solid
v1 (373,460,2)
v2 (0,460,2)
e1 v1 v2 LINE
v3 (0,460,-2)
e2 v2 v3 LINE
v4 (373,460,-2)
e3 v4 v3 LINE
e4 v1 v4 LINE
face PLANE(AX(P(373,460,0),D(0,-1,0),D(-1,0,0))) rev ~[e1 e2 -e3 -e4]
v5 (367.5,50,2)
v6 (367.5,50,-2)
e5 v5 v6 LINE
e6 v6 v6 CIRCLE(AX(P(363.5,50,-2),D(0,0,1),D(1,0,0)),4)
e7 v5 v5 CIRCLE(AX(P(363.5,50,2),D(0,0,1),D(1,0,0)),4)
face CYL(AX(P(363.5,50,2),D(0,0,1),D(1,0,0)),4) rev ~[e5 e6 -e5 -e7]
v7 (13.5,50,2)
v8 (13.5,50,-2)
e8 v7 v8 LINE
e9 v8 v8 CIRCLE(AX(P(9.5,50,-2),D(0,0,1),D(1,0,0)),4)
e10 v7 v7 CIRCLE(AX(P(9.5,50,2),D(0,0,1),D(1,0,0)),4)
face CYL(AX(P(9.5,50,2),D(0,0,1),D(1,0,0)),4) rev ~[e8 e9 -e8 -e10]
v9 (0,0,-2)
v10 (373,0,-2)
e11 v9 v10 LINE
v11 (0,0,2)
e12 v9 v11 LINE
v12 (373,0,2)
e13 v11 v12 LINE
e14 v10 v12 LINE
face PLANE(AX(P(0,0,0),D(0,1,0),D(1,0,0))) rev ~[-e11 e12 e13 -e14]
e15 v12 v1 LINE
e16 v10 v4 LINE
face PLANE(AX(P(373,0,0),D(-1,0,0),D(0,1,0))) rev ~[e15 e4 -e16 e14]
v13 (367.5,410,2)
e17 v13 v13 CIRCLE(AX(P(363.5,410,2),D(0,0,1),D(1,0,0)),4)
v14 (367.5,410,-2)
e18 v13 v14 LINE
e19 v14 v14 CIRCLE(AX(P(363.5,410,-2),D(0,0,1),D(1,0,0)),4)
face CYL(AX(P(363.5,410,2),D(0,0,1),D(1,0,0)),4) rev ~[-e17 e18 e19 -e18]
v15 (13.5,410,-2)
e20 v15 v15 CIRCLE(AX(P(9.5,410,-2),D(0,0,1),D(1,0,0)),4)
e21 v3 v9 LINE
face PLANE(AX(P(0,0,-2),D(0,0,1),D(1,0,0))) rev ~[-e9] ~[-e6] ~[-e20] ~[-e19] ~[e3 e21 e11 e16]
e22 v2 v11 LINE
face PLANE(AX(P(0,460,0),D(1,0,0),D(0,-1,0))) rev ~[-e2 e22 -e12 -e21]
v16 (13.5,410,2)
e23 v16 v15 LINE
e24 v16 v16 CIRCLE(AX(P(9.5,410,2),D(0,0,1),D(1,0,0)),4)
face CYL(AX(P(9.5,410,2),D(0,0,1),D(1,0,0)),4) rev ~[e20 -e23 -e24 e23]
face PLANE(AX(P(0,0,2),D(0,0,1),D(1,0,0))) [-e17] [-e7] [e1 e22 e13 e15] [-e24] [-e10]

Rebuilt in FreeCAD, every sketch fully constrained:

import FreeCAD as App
import Part
import Sketcher

V = App.Vector

doc = App.newDocument("Part")
body = doc.addObject("PartDesign::Body", "Body")

# Sketch on XY plane
sketch1 = body.newObject("Sketcher::SketchObject", "Sketch")
sketch1.AttachmentSupport = (doc.getObject("XY_Plane"), [""])
sketch1.MapMode = "FlatFace"
sketch1.addGeometry([
    Part.LineSegment(V(0, 460, 0), V(0, 0, 0)),
    Part.LineSegment(V(0, 0, 0), V(373, 0, 0)),
    Part.LineSegment(V(373, 0, 0), V(373, 460, 0)),
    Part.LineSegment(V(373, 460, 0), V(0, 460, 0)),
], False)
sketch1.addConstraint([
    Sketcher.Constraint("Coincident", 0, 2, 1, 1),
    Sketcher.Constraint("Coincident", 1, 2, 2, 1),
    Sketcher.Constraint("Coincident", 2, 2, 3, 1),
    Sketcher.Constraint("Coincident", 3, 2, 0, 1),
    Sketcher.Constraint("Vertical", 0),
    Sketcher.Constraint("Horizontal", 1),
    Sketcher.Constraint("Vertical", 2),
    Sketcher.Constraint("Horizontal", 3),
    Sketcher.Constraint("Coincident", 0, 2, -1, 1),
    Sketcher.Constraint("DistanceX", 1, 1, 1, 2, 373.0),
    Sketcher.Constraint("DistanceY", 0, 2, 0, 1, 460.0),
])
pad1 = body.newObject("PartDesign::Pad", "Pad")
pad1.Profile = sketch1
pad1.Length = 4
pad1.Midplane = True

# Sketch on XY plane
sketch2 = body.newObject("Sketcher::SketchObject", "Sketch001")
sketch2.AttachmentSupport = (doc.getObject("XY_Plane"), [""])
sketch2.MapMode = "FlatFace"
sketch2.AttachmentOffset = App.Placement(V(0, 0, 2), App.Rotation())
sketch2.addGeometry([
    Part.Circle(V(9.5, 410, 0), V(0, 0, 1), 4),
    Part.Circle(V(363.5, 410, 0), V(0, 0, 1), 4),
    Part.Circle(V(9.5, 50, 0), V(0, 0, 1), 4),
    Part.Circle(V(363.5, 50, 0), V(0, 0, 1), 4),
], False)
sketch2.addConstraint([
    Sketcher.Constraint("Equal", 0, 1),
    Sketcher.Constraint("Equal", 1, 2),
    Sketcher.Constraint("Equal", 2, 3),
    Sketcher.Constraint("Horizontal", 0, 3, 1, 3),
    Sketcher.Constraint("Horizontal", 2, 3, 3, 3),
    Sketcher.Constraint("Vertical", 0, 3, 2, 3),
    Sketcher.Constraint("Vertical", 1, 3, 3, 3),
    Sketcher.Constraint("Diameter", 0, 8.0),
    Sketcher.Constraint("DistanceY", -1, 1, 2, 3, 50.0),
    Sketcher.Constraint("DistanceX", -1, 1, 0, 3, 9.5),
    Sketcher.Constraint("DistanceY", -1, 1, 0, 3, 410.0),
    Sketcher.Constraint("DistanceX", 0, 3, 1, 3, 354.0),
])
pocket1 = body.newObject("PartDesign::Pocket", "Pocket")
pocket1.Profile = sketch2
pocket1.Length = 4

doc.recompute()
